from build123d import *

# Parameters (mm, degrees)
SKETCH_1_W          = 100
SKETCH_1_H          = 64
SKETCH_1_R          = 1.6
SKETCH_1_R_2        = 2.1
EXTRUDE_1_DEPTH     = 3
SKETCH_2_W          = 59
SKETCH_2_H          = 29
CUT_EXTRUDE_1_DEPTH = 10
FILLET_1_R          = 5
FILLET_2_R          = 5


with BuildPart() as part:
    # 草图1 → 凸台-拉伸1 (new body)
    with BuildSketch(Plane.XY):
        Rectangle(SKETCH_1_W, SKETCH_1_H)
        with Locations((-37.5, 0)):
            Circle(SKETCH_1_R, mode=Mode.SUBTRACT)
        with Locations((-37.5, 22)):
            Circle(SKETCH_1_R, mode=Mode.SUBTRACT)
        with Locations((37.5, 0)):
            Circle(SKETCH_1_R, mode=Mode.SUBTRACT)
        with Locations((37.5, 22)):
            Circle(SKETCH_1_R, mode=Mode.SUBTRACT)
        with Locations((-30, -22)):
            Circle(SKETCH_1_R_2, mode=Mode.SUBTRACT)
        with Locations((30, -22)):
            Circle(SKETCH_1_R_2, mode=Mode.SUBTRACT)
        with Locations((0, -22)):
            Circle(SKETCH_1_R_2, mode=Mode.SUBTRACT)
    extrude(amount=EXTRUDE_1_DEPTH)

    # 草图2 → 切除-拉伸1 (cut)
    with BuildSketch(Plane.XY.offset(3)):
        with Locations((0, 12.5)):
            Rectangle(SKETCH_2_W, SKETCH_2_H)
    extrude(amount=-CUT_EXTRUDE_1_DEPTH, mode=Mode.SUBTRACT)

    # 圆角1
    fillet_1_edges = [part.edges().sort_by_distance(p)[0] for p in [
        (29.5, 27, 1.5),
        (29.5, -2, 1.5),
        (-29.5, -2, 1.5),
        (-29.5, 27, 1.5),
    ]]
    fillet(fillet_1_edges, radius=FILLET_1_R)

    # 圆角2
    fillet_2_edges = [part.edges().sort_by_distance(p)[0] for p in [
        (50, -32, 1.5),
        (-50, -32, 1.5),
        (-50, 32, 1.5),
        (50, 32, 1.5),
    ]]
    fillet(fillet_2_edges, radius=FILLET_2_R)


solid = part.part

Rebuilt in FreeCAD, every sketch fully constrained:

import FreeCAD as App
import Part
import Sketcher

V = App.Vector
Q = App.Units.Quantity


def edges_at(feature, points):
    """Names of the edges that pass closest to the given points."""
    edges = feature.Shape.Edges
    near = lambda p: min(range(len(edges)), key=lambda i: edges[i].distToShape(Part.Vertex(*p))[0])
    return sorted({f"Edge{near(p) + 1}" for p in points})


def add_polygon(sketch, points):
    """Adds a closed chain of lines whose ends are joined by coincident constraints."""
    first, n = sketch.GeometryCount, len(points)
    for a, b in zip(points, points[1:] + points[:1]):
        sketch.addGeometry(Part.LineSegment(App.Vector(*a, 0), App.Vector(*b, 0)), False)
    for i in range(n):
        sketch.addConstraint(Sketcher.Constraint("Coincident", first + i, 2, first + (i + 1) % n, 1))

doc = App.newDocument("Part")
body = doc.addObject("PartDesign::Body", "Body")

sketch1 = body.newObject("Sketcher::SketchObject", "Sketch")
sketch1.AttachmentSupport = (doc.getObject("XY_Plane"), [""])
sketch1.MapMode = "FlatFace"
add_polygon(sketch1, [(-50, 32), (-50, -32), (50, -32), (50, 32)])
sketch1.addGeometry(Part.Circle(V(-30, -22, 0), V(0, 0, 1), 2.1), False)
sketch1.addGeometry(Part.Circle(V(0, -22, 0), V(0, 0, 1), 2.1), False)
sketch1.addGeometry(Part.Circle(V(30, -22, 0), V(0, 0, 1), 2.1), False)
sketch1.addGeometry(Part.Circle(V(-37.5, 0, 0), V(0, 0, 1), 1.6), False)
sketch1.addGeometry(Part.Circle(V(-37.5, 22, 0), V(0, 0, 1), 1.6), False)
sketch1.addGeometry(Part.Circle(V(37.5, 0, 0), V(0, 0, 1), 1.6), False)
sketch1.addGeometry(Part.Circle(V(37.5, 22, 0), V(0, 0, 1), 1.6), False)
sketch1.addConstraint([
    Sketcher.Constraint("Vertical", 0),
    Sketcher.Constraint("Horizontal", 1),
    Sketcher.Constraint("Vertical", 2),
    Sketcher.Constraint("Horizontal", 3),
    Sketcher.Constraint("Equal", 4, 5),
    Sketcher.Constraint("Equal", 5, 6),
    Sketcher.Constraint("Equal", 7, 8),
    Sketcher.Constraint("Equal", 8, 9),
    Sketcher.Constraint("Equal", 9, 10),
    Sketcher.Constraint("Symmetric", 7, 3, 9, 3, -1, 1),
    Sketcher.Constraint("Symmetric", 0, 2, 2, 2, -1, 1),
    Sketcher.Constraint("Symmetric", 4, 3, 6, 3, -2),
    Sketcher.Constraint("Symmetric", 8, 3, 10, 3, -2),
    Sketcher.Constraint("PointOnObject", 5, 3, -2),
    Sketcher.Constraint("PointOnObject", 7, 3, -1),
    Sketcher.Constraint("Horizontal", 4, 3, 5, 3),
    Sketcher.Constraint("Vertical", 7, 3, 8, 3),
    Sketcher.Constraint("Diameter", 4, Q("4.2 mm")),
    Sketcher.Constraint("Diameter", 7, Q("3.2 mm")),
    Sketcher.Constraint("DistanceX", 1, 1, 1, 2, Q("100 mm")),
    Sketcher.Constraint("DistanceY", 0, 2, 0, 1, Q("64 mm")),
    Sketcher.Constraint("DistanceX", 4, 3, -1, 1, Q("30 mm")),
    Sketcher.Constraint("DistanceY", 4, 3, -1, 1, Q("22 mm")),
    Sketcher.Constraint("DistanceY", -1, 1, 8, 3, Q("22 mm")),
    Sketcher.Constraint("DistanceX", 7, 3, 9, 3, Q("75 mm")),
])
pad1 = body.newObject("PartDesign::Pad", "Pad")
pad1.Profile = sketch1
pad1.Length = 3

sketch2 = body.newObject("Sketcher::SketchObject", "Sketch001")
sketch2.AttachmentSupport = (doc.getObject("XY_Plane"), [""])
sketch2.MapMode = "FlatFace"
sketch2.AttachmentOffset = App.Placement(V(0, 0, 3), App.Rotation())
add_polygon(sketch2, [(-29.5, 27), (-29.5, -2), (29.5, -2), (29.5, 27)])
sketch2.addConstraint([
    Sketcher.Constraint("Vertical", 0),
    Sketcher.Constraint("Horizontal", 1),
    Sketcher.Constraint("Vertical", 2),
    Sketcher.Constraint("Horizontal", 3),
    Sketcher.Constraint("DistanceX", 1, 1, 1, 2, Q("59 mm")),
    Sketcher.Constraint("DistanceY", 0, 2, 0, 1, Q("29 mm")),
    Sketcher.Constraint("DistanceY", 0, 2, -1, 1, Q("2 mm")),
    Sketcher.Constraint("DistanceX", 0, 2, -1, 1, Q("29.5 mm")),
])
pocket1 = body.newObject("PartDesign::Pocket", "Pocket")
pocket1.Profile = sketch2
pocket1.Length = 10
doc.recompute()

fillet = body.newObject("PartDesign::Fillet", "Fillet")
fillet.Base = (pocket1, edges_at(pocket1, [
    (29.5, 27, 1.5),
    (29.5, -2, 1.5),
    (-29.5, -2, 1.5),
    (-29.5, 27, 1.5),
]))
fillet.Radius = 5
doc.recompute()

fillet2 = body.newObject("PartDesign::Fillet", "Fillet001")
fillet2.Base = (fillet, edges_at(fillet, [
    (50, -32, 1.5),
    (-50, -32, 1.5),
    (-50, 32, 1.5),
    (50, 32, 1.5),
]))
fillet2.Radius = 5

doc.recompute()
